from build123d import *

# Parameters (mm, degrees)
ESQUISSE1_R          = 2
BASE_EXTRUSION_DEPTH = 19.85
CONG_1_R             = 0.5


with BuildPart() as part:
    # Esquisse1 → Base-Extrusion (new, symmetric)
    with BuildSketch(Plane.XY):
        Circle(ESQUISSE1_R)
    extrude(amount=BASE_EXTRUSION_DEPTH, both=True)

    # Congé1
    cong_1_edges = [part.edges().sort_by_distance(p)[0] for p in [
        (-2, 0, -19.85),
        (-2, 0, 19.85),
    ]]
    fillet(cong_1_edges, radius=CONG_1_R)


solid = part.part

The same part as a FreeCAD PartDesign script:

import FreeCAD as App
import Part
import Sketcher
from FreeCAD import Vector
Q = App.Units.Quantity


def edges_at(feature, points):
    """Names of the edges that pass closest to the given points."""
    edges = feature.Shape.Edges
    near = lambda p: min(range(len(edges)), key=lambda i: edges[i].distToShape(Part.Vertex(*p))[0])
    return sorted({f"Edge{near(p) + 1}" for p in points})

doc = App.newDocument("Part")
params = doc.addObject("Spreadsheet::Sheet", "Params")
for row, (alias, value) in enumerate([
    ("sketch1_diameter", "4 mm"),
    ("pad1_length", "39.7 mm"),
    ("fillet_radius", "0.5 mm"),
], start=1):
    params.set(f"A{row}", alias)
    params.set(f"B{row}", "=" + value)
    params.setAlias(f"B{row}", alias)

body = doc.addObject("PartDesign::Body", "Body")

sketch1 = doc.addObject("Sketcher::SketchObject", "Sketch")
body.addObject(sketch1)
sketch1.AttachmentSupport = (doc.XY_Plane, [""])
sketch1.MapMode = "FlatFace"
sketch1.addGeometry(Part.Circle(Vector(0, 0, 0), Vector(0, 0, 1), 2), False)
sketch1.addConstraint([
    Sketcher.Constraint("Coincident", 0, 3, -1, 1),
    Sketcher.Constraint("Diameter", 0, Q("4 mm")),
])
sketch1.setExpression("Constraints[1]", "Params.sketch1_diameter")
pad1 = doc.addObject("PartDesign::Pad", "Pad")
body.addObject(pad1)
pad1.Profile = sketch1
pad1.setExpression("Length", "Params.pad1_length")
pad1.Midplane = True
doc.recompute()

fillet = doc.addObject("PartDesign::Fillet", "Fillet")
body.addObject(fillet)
fillet.Base = (pad1, edges_at(pad1, [(-2, 0, -19.85), (-2, 0, 19.85)]))
fillet.setExpression("Radius", "Params.fillet_radius")

doc.recompute()
